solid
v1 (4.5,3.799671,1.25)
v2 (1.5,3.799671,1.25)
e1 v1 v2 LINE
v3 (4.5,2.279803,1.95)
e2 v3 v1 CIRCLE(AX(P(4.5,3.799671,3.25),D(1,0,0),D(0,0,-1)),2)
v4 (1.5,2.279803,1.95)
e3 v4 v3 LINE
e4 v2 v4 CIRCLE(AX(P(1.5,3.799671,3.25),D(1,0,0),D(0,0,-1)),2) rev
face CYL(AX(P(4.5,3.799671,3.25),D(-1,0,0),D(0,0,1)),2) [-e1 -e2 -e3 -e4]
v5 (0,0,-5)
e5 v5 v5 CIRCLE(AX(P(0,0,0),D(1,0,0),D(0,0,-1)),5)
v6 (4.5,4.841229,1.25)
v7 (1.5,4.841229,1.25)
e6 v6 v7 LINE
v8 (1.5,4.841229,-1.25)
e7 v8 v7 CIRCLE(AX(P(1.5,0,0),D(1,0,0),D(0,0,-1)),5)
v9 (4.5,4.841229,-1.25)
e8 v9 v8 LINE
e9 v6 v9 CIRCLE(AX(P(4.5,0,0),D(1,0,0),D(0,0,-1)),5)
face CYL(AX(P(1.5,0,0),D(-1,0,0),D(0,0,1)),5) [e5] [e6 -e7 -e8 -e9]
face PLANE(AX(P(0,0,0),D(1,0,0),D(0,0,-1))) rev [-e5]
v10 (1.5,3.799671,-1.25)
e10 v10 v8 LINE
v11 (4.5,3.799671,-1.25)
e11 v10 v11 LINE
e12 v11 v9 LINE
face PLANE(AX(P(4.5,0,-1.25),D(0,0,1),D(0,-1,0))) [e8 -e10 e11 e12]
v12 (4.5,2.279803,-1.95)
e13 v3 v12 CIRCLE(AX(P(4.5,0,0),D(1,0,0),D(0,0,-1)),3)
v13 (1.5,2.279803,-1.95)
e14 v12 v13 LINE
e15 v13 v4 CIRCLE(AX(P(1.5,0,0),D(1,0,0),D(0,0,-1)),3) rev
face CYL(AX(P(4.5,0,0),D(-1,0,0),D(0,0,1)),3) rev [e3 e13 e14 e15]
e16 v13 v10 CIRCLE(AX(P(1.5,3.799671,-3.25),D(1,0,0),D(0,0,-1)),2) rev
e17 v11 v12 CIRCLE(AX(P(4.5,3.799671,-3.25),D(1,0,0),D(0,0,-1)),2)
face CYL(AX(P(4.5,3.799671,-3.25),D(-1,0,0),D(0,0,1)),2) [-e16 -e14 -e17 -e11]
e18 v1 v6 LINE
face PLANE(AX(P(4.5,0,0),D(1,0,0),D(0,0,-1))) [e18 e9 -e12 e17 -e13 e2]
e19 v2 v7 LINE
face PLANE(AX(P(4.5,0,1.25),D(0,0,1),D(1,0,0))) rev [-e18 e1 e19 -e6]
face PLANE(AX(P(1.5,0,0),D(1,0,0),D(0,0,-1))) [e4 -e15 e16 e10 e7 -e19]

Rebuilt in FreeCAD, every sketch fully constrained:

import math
import FreeCAD as App
import Part
import Sketcher


def edges_at(feature, points):
    """Names of the edges that pass closest to the given points."""
    edges = feature.Shape.Edges
    near = lambda p: min(range(len(edges)), key=lambda i: edges[i].distToShape(Part.Vertex(*p))[0])
    return sorted({f"Edge{near(p) + 1}" for p in points})

doc = App.newDocument("Part")
params = doc.addObject("Spreadsheet::Sheet", "Params")
for row, (alias, value) in enumerate([
    ("sketch1_diameter", "10 mm"),
    ("pad1_length", "1.5 mm"),
    ("sketch2_diameter", "10 mm"),
    ("sketch2_diameter2", "6 mm"),
    ("pad2_length", "3 mm"),
    ("sketch3_radius", "3 mm"),
    ("sketch3_height", "2.5 mm"),
    ("fillet_radius", "2 mm"),
], start=1):
    params.set(f"A{row}", alias)
    params.set(f"B{row}", "=" + value)
    params.setAlias(f"B{row}", alias)

body = doc.addObject("PartDesign::Body", "Body")

# Sketch on YZ plane
sketch1 = doc.addObject("Sketcher::SketchObject", "Sketch")
body.addObject(sketch1)
sketch1.AttachmentSupport = (doc.YZ_Plane, [""])
sketch1.MapMode = "FlatFace"
sketch1.addGeometry(Part.Circle(App.Vector(0, 0, 0), App.Vector(0, 0, 1), 5), False)
sketch1.addConstraint([
    Sketcher.Constraint("Coincident", 0, 3, -1, 1),
    Sketcher.Constraint("Diameter", 0, 10.0),
])
sketch1.setExpression("Constraints[1]", "Params.sketch1_diameter")
pad1 = doc.addObject("PartDesign::Pad", "Pad")
body.addObject(pad1)
pad1.Profile = sketch1
pad1.setExpression("Length", "Params.pad1_length")

# Sketch on YZ plane
sketch2 = doc.addObject("Sketcher::SketchObject", "Sketch001")
body.addObject(sketch2)
sketch2.AttachmentSupport = (doc.YZ_Plane, [""])
sketch2.MapMode = "FlatFace"
sketch2.AttachmentOffset = App.Placement(App.Vector(0, 0, 1.5), App.Rotation())
sketch2.addGeometry([
    Part.Circle(App.Vector(0, 0, 0), App.Vector(0, 0, 1), 5),
    Part.Circle(App.Vector(0, 0, 0), App.Vector(0, 0, 1), 3),
], False)
sketch2.addConstraint([
    Sketcher.Constraint("Coincident", 0, 3, -1, 1),
    Sketcher.Constraint("Coincident", 1, 3, -1, 1),
    Sketcher.Constraint("Diameter", 0, 10.0),
    Sketcher.Constraint("Diameter", 1, 6.0),
])
sketch2.setExpression("Constraints[2]", "Params.sketch2_diameter")
sketch2.setExpression("Constraints[3]", "Params.sketch2_diameter2")
pad2 = doc.addObject("PartDesign::Pad", "Pad001")
body.addObject(pad2)
pad2.Profile = sketch2
pad2.setExpression("Length", "Params.pad2_length")

# Sketch on YZ plane
sketch3 = doc.addObject("Sketcher::SketchObject", "Sketch002")
body.addObject(sketch3)
sketch3.AttachmentSupport = (doc.YZ_Plane, [""])
sketch3.MapMode = "FlatFace"
sketch3.AttachmentOffset = App.Placement(App.Vector(0, 0, 1.5), App.Rotation())
sketch3.addGeometry([
    Part.LineSegment(App.Vector(6, 1.2, 0), App.Vector(-2.7, 1.2, 0)),
    Part.ArcOfCircle(Part.Circle(App.Vector(0, 0, 0), App.Vector(0, 0, 1), 3), math.radians(155), math.radians(205)),
    Part.LineSegment(App.Vector(-2.7, -1.2, 0), App.Vector(6, -1.2, 0)),
    Part.LineSegment(App.Vector(6, -1.2, 0), App.Vector(6, 1.2, 0)),
], False)
sketch3.addConstraint([
    Sketcher.Constraint("Coincident", 0, 2, 1, 1),
    Sketcher.Constraint("Coincident", 1, 2, 2, 1),
    Sketcher.Constraint("Coincident", 2, 2, 3, 1),
    Sketcher.Constraint("Coincident", 3, 2, 0, 1),
    Sketcher.Constraint("Horizontal", 0),
    Sketcher.Constraint("Horizontal", 2),
    Sketcher.Constraint("Vertical", 3),
    Sketcher.Constraint("Coincident", 1, 3, -1, 1),
    Sketcher.Constraint("Vertical", 0, 2, 1, 2),
    Sketcher.Constraint("Radius", 1, 3.0),
    Sketcher.Constraint("DistanceY", 3, 1, 3, 2, 2.5),
    Sketcher.Constraint("DistanceX", -1, 1, 2, 2, 6.0),
])
sketch3.setExpression("Constraints[9]", "Params.sketch3_radius")
sketch3.setExpression("Constraints[10]", "Params.sketch3_height")
pocket1 = doc.addObject("PartDesign::Pocket", "Pocket")
body.addObject(pocket1)
pocket1.Profile = sketch3
pocket1.Type = "ThroughAll"
pocket1.Reversed = True
doc.recompute()

fillet = doc.addObject("PartDesign::Fillet", "Fillet")
body.addObject(fillet)
fillet.Base = (pocket1, edges_at(pocket1, [(3, 2.727, 1.25), (3, 2.727, -1.25)]))
fillet.setExpression("Radius", "Params.fillet_radius")

doc.recompute()
